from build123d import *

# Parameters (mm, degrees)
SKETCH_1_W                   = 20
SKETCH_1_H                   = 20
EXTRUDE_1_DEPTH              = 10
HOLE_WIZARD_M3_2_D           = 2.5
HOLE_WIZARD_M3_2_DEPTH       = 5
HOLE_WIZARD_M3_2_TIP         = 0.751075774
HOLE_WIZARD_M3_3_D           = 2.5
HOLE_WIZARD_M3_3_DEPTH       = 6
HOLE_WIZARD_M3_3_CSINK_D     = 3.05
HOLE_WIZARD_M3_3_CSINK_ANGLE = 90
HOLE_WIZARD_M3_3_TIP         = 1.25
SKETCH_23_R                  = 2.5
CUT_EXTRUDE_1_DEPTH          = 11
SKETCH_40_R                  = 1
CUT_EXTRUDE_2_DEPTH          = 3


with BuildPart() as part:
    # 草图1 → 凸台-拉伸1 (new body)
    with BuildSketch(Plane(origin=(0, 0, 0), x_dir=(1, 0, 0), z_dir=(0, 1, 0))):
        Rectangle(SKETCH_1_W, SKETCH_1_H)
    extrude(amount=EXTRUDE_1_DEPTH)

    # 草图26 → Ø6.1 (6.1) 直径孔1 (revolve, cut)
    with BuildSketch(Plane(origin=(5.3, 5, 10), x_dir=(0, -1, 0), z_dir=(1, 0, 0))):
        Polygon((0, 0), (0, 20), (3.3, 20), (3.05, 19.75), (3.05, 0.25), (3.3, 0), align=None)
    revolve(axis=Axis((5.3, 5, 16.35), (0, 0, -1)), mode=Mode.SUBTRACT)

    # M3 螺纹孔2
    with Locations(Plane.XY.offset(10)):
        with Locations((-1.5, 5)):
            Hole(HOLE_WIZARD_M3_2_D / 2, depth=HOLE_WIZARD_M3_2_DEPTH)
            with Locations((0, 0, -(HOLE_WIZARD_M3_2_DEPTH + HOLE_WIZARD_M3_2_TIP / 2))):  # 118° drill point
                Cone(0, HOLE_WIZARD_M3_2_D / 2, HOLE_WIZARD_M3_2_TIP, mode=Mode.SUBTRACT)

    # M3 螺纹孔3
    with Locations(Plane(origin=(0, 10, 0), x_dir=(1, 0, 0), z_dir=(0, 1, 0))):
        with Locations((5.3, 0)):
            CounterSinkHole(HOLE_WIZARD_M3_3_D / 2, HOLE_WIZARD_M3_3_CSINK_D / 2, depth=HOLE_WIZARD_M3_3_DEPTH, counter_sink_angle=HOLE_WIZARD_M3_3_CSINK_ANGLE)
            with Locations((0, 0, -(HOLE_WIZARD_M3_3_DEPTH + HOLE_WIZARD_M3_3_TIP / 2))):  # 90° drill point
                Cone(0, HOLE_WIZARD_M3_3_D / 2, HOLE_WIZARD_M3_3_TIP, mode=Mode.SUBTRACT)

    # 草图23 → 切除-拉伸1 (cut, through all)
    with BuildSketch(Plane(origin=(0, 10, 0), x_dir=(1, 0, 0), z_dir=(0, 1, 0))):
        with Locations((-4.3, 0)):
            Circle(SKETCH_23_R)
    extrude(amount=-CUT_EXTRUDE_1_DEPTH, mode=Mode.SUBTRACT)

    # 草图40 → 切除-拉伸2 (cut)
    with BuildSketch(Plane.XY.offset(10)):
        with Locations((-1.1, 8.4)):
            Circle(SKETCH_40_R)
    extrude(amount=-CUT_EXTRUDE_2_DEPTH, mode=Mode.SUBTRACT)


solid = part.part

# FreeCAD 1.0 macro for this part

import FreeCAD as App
import Part
import Sketcher
from FreeCAD import Vector

doc = App.newDocument("Part")
body = doc.addObject("PartDesign::Body", "Body")

sketch1 = body.newObject("Sketcher::SketchObject", "Sketch")
sketch1.AttachmentSupport = (doc.getObject("XZ_Plane"), [""])
sketch1.MapMode = "FlatFace"
sketch1.addGeometry(Part.LineSegment(Vector(-10, -10, 0), Vector(-10, 10, 0)), False)
sketch1.addGeometry(Part.LineSegment(Vector(-10, 10, 0), Vector(10, 10, 0)), False)
sketch1.addGeometry(Part.LineSegment(Vector(10, 10, 0), Vector(10, -10, 0)), False)
sketch1.addGeometry(Part.LineSegment(Vector(10, -10, 0), Vector(-10, -10, 0)), False)
sketch1.addConstraint(Sketcher.Constraint("Coincident", 0, 2, 1, 1))
sketch1.addConstraint(Sketcher.Constraint("Coincident", 1, 2, 2, 1))
sketch1.addConstraint(Sketcher.Constraint("Coincident", 2, 2, 3, 1))
sketch1.addConstraint(Sketcher.Constraint("Coincident", 3, 2, 0, 1))
sketch1.addConstraint(Sketcher.Constraint("Vertical", 0))
sketch1.addConstraint(Sketcher.Constraint("Horizontal", 1))
sketch1.addConstraint(Sketcher.Constraint("Vertical", 2))
sketch1.addConstraint(Sketcher.Constraint("Horizontal", 3))
sketch1.addConstraint(Sketcher.Constraint("Symmetric", 0, 2, 2, 2, -1, 1))
sketch1.addConstraint(Sketcher.Constraint("Equal", 3, 0))
sketch1.addConstraint(Sketcher.Constraint("DistanceX", 1, 1, 1, 2, 20.0))
pad1 = body.newObject("PartDesign::Pad", "Pad")
pad1.Profile = sketch1
pad1.Length = 10
pad1.Reversed = True

sketch2 = body.newObject("Sketcher::SketchObject", "Sketch001")
sketch2.AttachmentSupport = (doc.getObject("YZ_Plane"), [""])
sketch2.MapMode = "FlatFace"
sketch2.AttachmentOffset = App.Placement(Vector(0, 0, 5.3), App.Rotation())
sketch2.addGeometry(Part.LineSegment(Vector(5, -10, 0), Vector(5, 10, 0)), False)
sketch2.addGeometry(Part.LineSegment(Vector(5, 10, 0), Vector(1.7, 10, 0)), False)
sketch2.addGeometry(Part.LineSegment(Vector(1.7, 10, 0), Vector(1.95, 9.75, 0)), False)
sketch2.addGeometry(Part.LineSegment(Vector(1.95, 9.75, 0), Vector(1.95, -9.75, 0)), False)
sketch2.addGeometry(Part.LineSegment(Vector(1.95, -9.75, 0), Vector(1.7, -10, 0)), False)
sketch2.addGeometry(Part.LineSegment(Vector(1.7, -10, 0), Vector(5, -10, 0)), False)
sketch2.addGeometry(Part.LineSegment(Vector(5, 10, 0), Vector(5, -10, 0)), True)
sketch2.addConstraint(Sketcher.Constraint("Coincident", 0, 2, 1, 1))
sketch2.addConstraint(Sketcher.Constraint("Coincident", 1, 2, 2, 1))
sketch2.addConstraint(Sketcher.Constraint("Coincident", 2, 2, 3, 1))
sketch2.addConstraint(Sketcher.Constraint("Coincident", 3, 2, 4, 1))
sketch2.addConstraint(Sketcher.Constraint("Coincident", 4, 2, 5, 1))
sketch2.addConstraint(Sketcher.Constraint("Coincident", 5, 2, 0, 1))
sketch2.addConstraint(Sketcher.Constraint("Vertical", 0))
sketch2.addConstraint(Sketcher.Constraint("Horizontal", 1))
sketch2.addConstraint(Sketcher.Constraint("Vertical", 3))
sketch2.addConstraint(Sketcher.Constraint("Horizontal", 5))
sketch2.addConstraint(Sketcher.Constraint("Vertical", 6))
sketch2.addConstraint(Sketcher.Constraint("Coincident", 6, 1, 0, 2))
sketch2.addConstraint(Sketcher.Constraint("Symmetric", 1, 2, 4, 2, -1))
sketch2.addConstraint(Sketcher.Constraint("Perpendicular", 2, 4))
sketch2.addConstraint(Sketcher.Constraint("Horizontal", 4, 2, 6, 2))
sketch2.addConstraint(Sketcher.Constraint("Equal", 2, 4))
sketch2.addConstraint(Sketcher.Constraint("DistanceY", 0, 1, 0, 2, 20.0))
sketch2.addConstraint(Sketcher.Constraint("DistanceX", 1, 2, 1, 1, 3.3))
sketch2.addConstraint(Sketcher.Constraint("DistanceY", 3, 2, 3, 1, 19.5))
sketch2.addConstraint(Sketcher.Constraint("DistanceX", -1, 1, 0, 2, 5.0))
groove = body.newObject("PartDesign::Groove", "Groove")
groove.Profile = sketch2
groove.ReferenceAxis = (sketch2, ["Axis0"])
groove.Angle = 360

sketch3 = body.newObject("Sketcher::SketchObject", "Sketch002")
sketch3.AttachmentSupport = (doc.getObject("XY_Plane"), [""])
sketch3.MapMode = "FlatFace"
sketch3.AttachmentOffset = App.Placement(Vector(0, 0, 10), App.Rotation())
sketch3.addGeometry(Part.Circle(Vector(-1.5, 5, 0), Vector(0, 0, 1), 1.2), False)
sketch3.addConstraint(Sketcher.Constraint("Diameter", 0, 2.5))
sketch3.addConstraint(Sketcher.Constraint("DistanceY", -1, 1, 0, 3, 5.0))
sketch3.addConstraint(Sketcher.Constraint("DistanceX", 0, 3, -1, 1, 1.5))
doc.recompute()
hole = body.newObject("PartDesign::Hole", "Hole")
hole.Profile = sketch3
hole.ThreadType = "None"
hole.Diameter = 2.5
hole.DepthType = "Dimension"
hole.Depth = 5
hole.DrillPoint = "Angled"
hole.DrillPointAngle = 118

sketch4 = body.newObject("Sketcher::SketchObject", "Sketch003")
sketch4.AttachmentSupport = (doc.getObject("XZ_Plane"), [""])
sketch4.MapMode = "FlatFace"
sketch4.AttachmentOffset = App.Placement(Vector(0, 0, -10), App.Rotation())
sketch4.addGeometry(Part.Circle(Vector(5.3, 0, 0), Vector(0, 0, 1), 1.2), False)
sketch4.addConstraint(Sketcher.Constraint("PointOnObject", 0, 3, -1))
sketch4.addConstraint(Sketcher.Constraint("Diameter", 0, 2.5))
sketch4.addConstraint(Sketcher.Constraint("DistanceX", -1, 1, 0, 3, 5.3))
doc.recompute()
hole2 = body.newObject("PartDesign::Hole", "Hole001")
hole2.Profile = sketch4
hole2.ThreadType = "None"
hole2.Diameter = 2.5
hole2.DepthType = "Dimension"
hole2.Depth = 6
hole2.DrillPoint = "Angled"
hole2.DrillPointAngle = 90
hole2.HoleCutType = "Countersink"
hole2.HoleCutDiameter = 3.05
hole2.HoleCutCountersinkAngle = 90
hole2.Reversed = True

sketch5 = body.newObject("Sketcher::SketchObject", "Sketch004")
sketch5.AttachmentSupport = (doc.getObject("XZ_Plane"), [""])
sketch5.MapMode = "FlatFace"
sketch5.AttachmentOffset = App.Placement(Vector(0, 0, -10), App.Rotation())
sketch5.addGeometry(Part.Circle(Vector(-4.3, 0, 0), Vector(0, 0, 1), 2.5), False)
sketch5.addConstraint(Sketcher.Constraint("PointOnObject", 0, 3, -1))
sketch5.addConstraint(Sketcher.Constraint("Diameter", 0, 5.0))
sketch5.addConstraint(Sketcher.Constraint("DistanceX", 0, 3, -1, 1, 4.3))
pocket1 = body.newObject("PartDesign::Pocket", "Pocket")
pocket1.Profile = sketch5
pocket1.Type = "ThroughAll"
pocket1.Reversed = True

sketch6 = body.newObject("Sketcher::SketchObject", "Sketch005")
sketch6.AttachmentSupport = (doc.getObject("XY_Plane"), [""])
sketch6.MapMode = "FlatFace"
sketch6.AttachmentOffset = App.Placement(Vector(0, 0, 10), App.Rotation())
sketch6.addGeometry(Part.Circle(Vector(-1.1, 8.4, 0), Vector(0, 0, 1), 1), False)
sketch6.addConstraint(Sketcher.Constraint("Diameter", 0, 2.0))
sketch6.addConstraint(Sketcher.Constraint("DistanceX", 0, 3, -1, 1, 1.1))
sketch6.addConstraint(Sketcher.Constraint("DistanceY", -1, 1, 0, 3, 8.4))
pocket2 = body.newObject("PartDesign::Pocket", "Pocket001")
pocket2.Profile = sketch6
pocket2.Length = 3

doc.recompute()
